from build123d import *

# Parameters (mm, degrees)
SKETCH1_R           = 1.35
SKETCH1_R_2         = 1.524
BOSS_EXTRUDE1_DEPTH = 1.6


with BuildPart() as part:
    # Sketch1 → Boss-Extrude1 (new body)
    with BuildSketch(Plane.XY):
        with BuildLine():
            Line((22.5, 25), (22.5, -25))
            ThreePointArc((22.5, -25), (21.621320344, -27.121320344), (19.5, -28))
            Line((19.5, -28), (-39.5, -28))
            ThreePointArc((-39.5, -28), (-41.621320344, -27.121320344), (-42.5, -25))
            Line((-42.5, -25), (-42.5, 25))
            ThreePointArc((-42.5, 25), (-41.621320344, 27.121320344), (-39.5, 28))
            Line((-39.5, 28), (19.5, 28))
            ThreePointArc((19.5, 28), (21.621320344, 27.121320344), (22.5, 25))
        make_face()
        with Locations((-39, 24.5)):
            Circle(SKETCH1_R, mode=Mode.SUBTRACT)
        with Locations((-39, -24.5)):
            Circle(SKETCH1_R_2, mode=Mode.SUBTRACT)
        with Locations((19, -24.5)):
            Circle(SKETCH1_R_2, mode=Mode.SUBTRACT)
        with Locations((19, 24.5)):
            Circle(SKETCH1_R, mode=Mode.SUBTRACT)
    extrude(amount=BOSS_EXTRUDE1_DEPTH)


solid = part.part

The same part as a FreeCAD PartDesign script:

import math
import FreeCAD as App
import Part
import Sketcher

doc = App.newDocument("Part")
body = doc.addObject("PartDesign::Body", "Body")

sketch1 = body.newObject("Sketcher::SketchObject", "Sketch")
sketch1.AttachmentSupport = (doc.getObject("XY_Plane"), [""])
sketch1.MapMode = "FlatFace"
sketch1.addGeometry([
    Part.LineSegment(App.Vector(22.5, -25, 0), App.Vector(22.5, 25, 0)),
    Part.ArcOfCircle(Part.Circle(App.Vector(19.5, 25, 0), App.Vector(0, 0, 1), 3), math.radians(0), math.radians(90)),
    Part.LineSegment(App.Vector(19.5, 28, 0), App.Vector(-39.5, 28, 0)),
    Part.ArcOfCircle(Part.Circle(App.Vector(-39.5, 25, 0), App.Vector(0, 0, 1), 3), math.radians(90), math.radians(180)),
    Part.LineSegment(App.Vector(-42.5, 25, 0), App.Vector(-42.5, -25, 0)),
    Part.ArcOfCircle(Part.Circle(App.Vector(-39.5, -25, 0), App.Vector(0, 0, 1), 3), math.radians(180), math.radians(270)),
    Part.LineSegment(App.Vector(-39.5, -28, 0), App.Vector(19.5, -28, 0)),
    Part.ArcOfCircle(Part.Circle(App.Vector(19.5, -25, 0), App.Vector(0, 0, 1), 3), math.radians(-90), math.radians(0)),
    Part.Circle(App.Vector(19, -24.5, 0), App.Vector(0, 0, 1), 1.524),
    Part.Circle(App.Vector(-39, -24.5, 0), App.Vector(0, 0, 1), 1.524),
    Part.Circle(App.Vector(19, 24.5, 0), App.Vector(0, 0, 1), 1.35),
    Part.Circle(App.Vector(-39, 24.5, 0), App.Vector(0, 0, 1), 1.35),
], False)
sketch1.addConstraint([
    Sketcher.Constraint("Tangent", 0, 2, 1, 1),
    Sketcher.Constraint("Tangent", 1, 2, 2, 1),
    Sketcher.Constraint("Tangent", 2, 2, 3, 1),
    Sketcher.Constraint("Tangent", 3, 2, 4, 1),
    Sketcher.Constraint("Tangent", 4, 2, 5, 1),
    Sketcher.Constraint("Tangent", 5, 2, 6, 1),
    Sketcher.Constraint("Tangent", 6, 2, 7, 1),
    Sketcher.Constraint("Tangent", 7, 2, 0, 1),
    Sketcher.Constraint("Vertical", 0),
    Sketcher.Constraint("Horizontal", 2),
    Sketcher.Constraint("Vertical", 4),
    Sketcher.Constraint("Horizontal", 6),
    Sketcher.Constraint("Equal", 1, 3),
    Sketcher.Constraint("Equal", 3, 5),
    Sketcher.Constraint("Equal", 5, 7),
    Sketcher.Constraint("Equal", 8, 9),
    Sketcher.Constraint("Equal", 10, 11),
    Sketcher.Constraint("Symmetric", 8, 3, 10, 3, -1),
    Sketcher.Constraint("Symmetric", 9, 3, 11, 3, -1),
    Sketcher.Constraint("Horizontal", 8, 3, 9, 3),
    Sketcher.Constraint("Radius", 1, 3.0),
    Sketcher.Constraint("Diameter", 10, 2.7),
    Sketcher.Constraint("DistanceX", 2, 2, 2, 1, 59.0),
    Sketcher.Constraint("DistanceY", 0, 1, 0, 2, 50.0),
    Sketcher.Constraint("Diameter", 8, 3.048),
    Sketcher.Constraint("DistanceY", -1, 1, 1, 3, 25.0),
    Sketcher.Constraint("DistanceX", -1, 1, 8, 3, 19.0),
    Sketcher.Constraint("DistanceX", 9, 3, -1, 1, 39.0),
    Sketcher.Constraint("DistanceY", 8, 3, 10, 3, 49.0),
    Sketcher.Constraint("DistanceX", -1, 1, 1, 3, 19.5),
])
pad1 = body.newObject("PartDesign::Pad", "Pad")
pad1.Profile = sketch1
pad1.Length = 1.6

doc.recompute()
